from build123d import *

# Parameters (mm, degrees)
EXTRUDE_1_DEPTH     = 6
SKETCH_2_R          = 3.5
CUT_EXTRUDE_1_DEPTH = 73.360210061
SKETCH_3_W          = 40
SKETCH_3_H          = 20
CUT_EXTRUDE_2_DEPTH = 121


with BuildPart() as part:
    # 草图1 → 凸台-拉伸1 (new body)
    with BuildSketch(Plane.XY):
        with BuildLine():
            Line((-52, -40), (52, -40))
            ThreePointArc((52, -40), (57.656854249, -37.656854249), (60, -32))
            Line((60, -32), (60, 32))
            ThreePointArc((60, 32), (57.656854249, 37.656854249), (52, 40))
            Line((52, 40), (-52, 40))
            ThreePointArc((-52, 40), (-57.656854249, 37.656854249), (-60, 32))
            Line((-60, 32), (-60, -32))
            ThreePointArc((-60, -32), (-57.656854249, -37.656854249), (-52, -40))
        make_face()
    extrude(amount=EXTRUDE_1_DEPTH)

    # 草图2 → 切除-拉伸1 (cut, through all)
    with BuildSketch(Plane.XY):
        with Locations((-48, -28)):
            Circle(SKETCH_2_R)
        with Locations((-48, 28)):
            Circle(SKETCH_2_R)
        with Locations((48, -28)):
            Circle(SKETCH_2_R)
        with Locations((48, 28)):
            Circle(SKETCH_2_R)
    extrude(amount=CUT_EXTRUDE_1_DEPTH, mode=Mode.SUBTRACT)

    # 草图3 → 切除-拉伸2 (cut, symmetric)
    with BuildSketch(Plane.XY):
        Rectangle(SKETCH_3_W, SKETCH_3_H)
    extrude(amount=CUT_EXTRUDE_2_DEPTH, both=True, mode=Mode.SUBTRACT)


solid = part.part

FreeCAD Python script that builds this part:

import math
import FreeCAD as App
import Part
import Sketcher

V = App.Vector
Q = App.Units.Quantity


def add_polygon(sketch, points):
    """Adds a closed chain of lines whose ends are joined by coincident constraints."""
    first, n = sketch.GeometryCount, len(points)
    for a, b in zip(points, points[1:] + points[:1]):
        sketch.addGeometry(Part.LineSegment(App.Vector(*a, 0), App.Vector(*b, 0)), False)
    for i in range(n):
        sketch.addConstraint(Sketcher.Constraint("Coincident", first + i, 2, first + (i + 1) % n, 1))

doc = App.newDocument("Part")
params = doc.addObject("Spreadsheet::Sheet", "Params")
for row, (alias, value) in enumerate([
    ("sketch1_radius", "8 mm"),
    ("sketch1_width", "104 mm"),
    ("sketch1_height", "64 mm"),
    ("pad1_length", "6 mm"),
    ("sketch2_diameter", "7 mm"),
    ("sketch3_width", "40 mm"),
    ("sketch3_height", "20 mm"),
    ("pocket2_length", "242 mm"),
], start=1):
    params.set(f"A{row}", alias)
    params.set(f"B{row}", "=" + value)
    params.setAlias(f"B{row}", alias)

body = doc.addObject("PartDesign::Body", "Body")

# Sketch on XY plane
sketch1 = body.newObject("Sketcher::SketchObject", "Sketch")
sketch1.AttachmentSupport = (doc.getObject("XY_Plane"), [""])
sketch1.MapMode = "FlatFace"
sketch1.addGeometry([
    Part.LineSegment(V(-52, -40, 0), V(52, -40, 0)),  # 0
    Part.ArcOfCircle(Part.Circle(V(52, -32, 0), V(0, 0, 1), 8), math.radians(-90), math.radians(0)),  # 1
    Part.LineSegment(V(60, -32, 0), V(60, 32, 0)),  # 2
    Part.ArcOfCircle(Part.Circle(V(52, 32, 0), V(0, 0, 1), 8), math.radians(0), math.radians(90)),  # 3
    Part.LineSegment(V(52, 40, 0), V(-52, 40, 0)),  # 4
    Part.ArcOfCircle(Part.Circle(V(-52, 32, 0), V(0, 0, 1), 8), math.radians(90), math.radians(180)),  # 5
    Part.LineSegment(V(-60, 32, 0), V(-60, -32, 0)),  # 6
    Part.ArcOfCircle(Part.Circle(V(-52, -32, 0), V(0, 0, 1), 8), math.radians(-180), math.radians(-90)),  # 7
], False)
sketch1.addConstraint([
    Sketcher.Constraint("Tangent", 0, 2, 1, 1),
    Sketcher.Constraint("Tangent", 1, 2, 2, 1),
    Sketcher.Constraint("Tangent", 2, 2, 3, 1),
    Sketcher.Constraint("Tangent", 3, 2, 4, 1),
    Sketcher.Constraint("Tangent", 4, 2, 5, 1),
    Sketcher.Constraint("Tangent", 5, 2, 6, 1),
    Sketcher.Constraint("Tangent", 6, 2, 7, 1),
    Sketcher.Constraint("Tangent", 7, 2, 0, 1),
    Sketcher.Constraint("Horizontal", 0),
    Sketcher.Constraint("Vertical", 2),
    Sketcher.Constraint("Horizontal", 4),
    Sketcher.Constraint("Vertical", 6),
    Sketcher.Constraint("Equal", 1, 3),
    Sketcher.Constraint("Equal", 3, 5),
    Sketcher.Constraint("Equal", 5, 7),
    Sketcher.Constraint("Symmetric", 1, 3, 5, 3, -1, 1),
    Sketcher.Constraint("Radius", 1, Q("8 mm")),
    Sketcher.Constraint("DistanceX", 0, 1, 0, 2, Q("104 mm")),
    Sketcher.Constraint("DistanceY", 2, 1, 2, 2, Q("64 mm")),
])
sketch1.setExpression("Constraints[16]", "Params.sketch1_radius")
sketch1.setExpression("Constraints[17]", "Params.sketch1_width")
sketch1.setExpression("Constraints[18]", "Params.sketch1_height")
pad1 = body.newObject("PartDesign::Pad", "Pad")
pad1.Profile = sketch1
pad1.setExpression("Length", "Params.pad1_length")

# Sketch on XY plane
sketch2 = body.newObject("Sketcher::SketchObject", "Sketch001")
sketch2.AttachmentSupport = (doc.getObject("XY_Plane"), [""])
sketch2.MapMode = "FlatFace"
sketch2.addGeometry([
    Part.Circle(V(-48, -28, 0), V(0, 0, 1), 3.5),
    Part.Circle(V(-48, 28, 0), V(0, 0, 1), 3.5),
    Part.Circle(V(48, -28, 0), V(0, 0, 1), 3.5),
    Part.Circle(V(48, 28, 0), V(0, 0, 1), 3.5),
], False)
sketch2.addConstraint([
    Sketcher.Constraint("Equal", 0, 1),
    Sketcher.Constraint("Equal", 1, 2),
    Sketcher.Constraint("Equal", 2, 3),
    Sketcher.Constraint("Symmetric", 1, 3, 2, 3, -1, 1),
    Sketcher.Constraint("Symmetric", 0, 3, 3, 3, -1, 1),
    Sketcher.Constraint("Symmetric", 0, 3, 2, 3, -2),
    Sketcher.Constraint("Diameter", 0, Q("7 mm")),
    Sketcher.Constraint("DistanceX", 0, 3, -1, 1, Q("48 mm")),
    Sketcher.Constraint("DistanceY", 0, 3, -1, 1, Q("28 mm")),
])
sketch2.setExpression("Constraints[6]", "Params.sketch2_diameter")
pocket1 = body.newObject("PartDesign::Pocket", "Pocket")
pocket1.Profile = sketch2
pocket1.Type = "ThroughAll"
pocket1.Reversed = True

# Sketch on XY plane
sketch3 = body.newObject("Sketcher::SketchObject", "Sketch002")
sketch3.AttachmentSupport = (doc.getObject("XY_Plane"), [""])
sketch3.MapMode = "FlatFace"
add_polygon(sketch3, [(-20, 10), (-20, -10), (20, -10), (20, 10)])  # lines 0-3
sketch3.addConstraint([
    Sketcher.Constraint("Vertical", 0),
    Sketcher.Constraint("Horizontal", 1),
    Sketcher.Constraint("Vertical", 2),
    Sketcher.Constraint("Horizontal", 3),
    Sketcher.Constraint("Symmetric", 0, 2, 2, 2, -1, 1),
    Sketcher.Constraint("DistanceX", 1, 1, 1, 2, Q("40 mm")),
    Sketcher.Constraint("DistanceY", 0, 2, 0, 1, Q("20 mm")),
])
sketch3.setExpression("Constraints[9]", "Params.sketch3_width")
sketch3.setExpression("Constraints[10]", "Params.sketch3_height")
pocket2 = body.newObject("PartDesign::Pocket", "Pocket001")
pocket2.Profile = sketch3
pocket2.setExpression("Length", "Params.pocket2_length")
pocket2.Midplane = True

doc.recompute()
